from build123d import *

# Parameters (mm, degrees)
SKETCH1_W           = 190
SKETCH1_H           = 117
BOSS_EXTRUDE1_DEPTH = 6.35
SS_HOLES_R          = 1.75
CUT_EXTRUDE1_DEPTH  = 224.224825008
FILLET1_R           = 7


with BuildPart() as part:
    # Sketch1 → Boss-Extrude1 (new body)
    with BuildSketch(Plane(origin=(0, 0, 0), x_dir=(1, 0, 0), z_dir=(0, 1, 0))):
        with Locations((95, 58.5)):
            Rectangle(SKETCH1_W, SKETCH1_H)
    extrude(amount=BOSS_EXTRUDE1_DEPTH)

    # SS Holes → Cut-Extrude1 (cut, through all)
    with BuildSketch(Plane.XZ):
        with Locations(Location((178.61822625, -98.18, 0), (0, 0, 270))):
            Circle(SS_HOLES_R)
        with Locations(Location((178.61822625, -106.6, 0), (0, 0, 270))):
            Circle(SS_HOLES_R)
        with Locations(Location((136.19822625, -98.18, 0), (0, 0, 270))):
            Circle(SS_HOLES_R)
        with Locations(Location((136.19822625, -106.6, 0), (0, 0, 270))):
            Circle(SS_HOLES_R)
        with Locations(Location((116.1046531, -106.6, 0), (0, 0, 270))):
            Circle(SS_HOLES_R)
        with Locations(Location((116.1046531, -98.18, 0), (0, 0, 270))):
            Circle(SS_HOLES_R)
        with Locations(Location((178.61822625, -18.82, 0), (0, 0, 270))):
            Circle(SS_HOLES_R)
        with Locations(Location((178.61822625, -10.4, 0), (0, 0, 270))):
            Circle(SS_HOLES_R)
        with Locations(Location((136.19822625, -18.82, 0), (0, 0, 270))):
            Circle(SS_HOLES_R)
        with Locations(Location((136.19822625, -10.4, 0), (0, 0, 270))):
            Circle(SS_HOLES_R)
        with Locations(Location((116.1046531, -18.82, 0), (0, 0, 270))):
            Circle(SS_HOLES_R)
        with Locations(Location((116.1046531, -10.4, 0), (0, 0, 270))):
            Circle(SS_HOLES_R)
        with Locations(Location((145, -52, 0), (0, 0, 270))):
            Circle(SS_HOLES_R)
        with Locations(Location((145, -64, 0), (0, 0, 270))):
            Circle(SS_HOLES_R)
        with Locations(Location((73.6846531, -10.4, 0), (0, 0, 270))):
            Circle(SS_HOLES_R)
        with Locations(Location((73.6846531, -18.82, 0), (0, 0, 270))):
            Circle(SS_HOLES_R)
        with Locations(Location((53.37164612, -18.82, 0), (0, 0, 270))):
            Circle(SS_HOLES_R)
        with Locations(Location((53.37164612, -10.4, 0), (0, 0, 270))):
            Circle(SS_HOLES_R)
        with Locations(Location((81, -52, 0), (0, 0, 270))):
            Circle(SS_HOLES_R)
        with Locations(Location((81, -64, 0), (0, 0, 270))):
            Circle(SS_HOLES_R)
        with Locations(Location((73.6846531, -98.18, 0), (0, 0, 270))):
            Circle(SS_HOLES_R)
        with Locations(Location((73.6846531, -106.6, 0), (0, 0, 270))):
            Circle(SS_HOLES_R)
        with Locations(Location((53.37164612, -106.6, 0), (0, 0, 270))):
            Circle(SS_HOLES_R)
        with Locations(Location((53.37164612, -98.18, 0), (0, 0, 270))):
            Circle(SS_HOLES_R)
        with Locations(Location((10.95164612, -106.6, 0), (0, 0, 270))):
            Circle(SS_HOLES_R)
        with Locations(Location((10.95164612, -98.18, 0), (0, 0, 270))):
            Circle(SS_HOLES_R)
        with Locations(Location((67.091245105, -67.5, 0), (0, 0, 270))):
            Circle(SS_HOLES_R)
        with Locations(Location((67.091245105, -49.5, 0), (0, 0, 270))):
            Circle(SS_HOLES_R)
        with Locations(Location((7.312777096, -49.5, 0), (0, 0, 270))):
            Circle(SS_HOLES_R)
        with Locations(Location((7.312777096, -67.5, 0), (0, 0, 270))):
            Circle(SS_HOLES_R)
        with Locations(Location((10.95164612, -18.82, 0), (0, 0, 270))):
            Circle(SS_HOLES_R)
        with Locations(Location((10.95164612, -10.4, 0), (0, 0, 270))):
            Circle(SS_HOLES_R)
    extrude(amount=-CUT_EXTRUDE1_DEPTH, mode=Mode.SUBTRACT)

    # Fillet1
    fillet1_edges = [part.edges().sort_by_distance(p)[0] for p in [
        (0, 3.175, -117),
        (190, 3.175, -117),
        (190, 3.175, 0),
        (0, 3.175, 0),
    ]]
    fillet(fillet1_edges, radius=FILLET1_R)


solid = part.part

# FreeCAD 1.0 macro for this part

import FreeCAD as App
import Part
import Sketcher


def edges_at(feature, points):
    """Names of the edges that pass closest to the given points."""
    edges = feature.Shape.Edges
    near = lambda p: min(range(len(edges)), key=lambda i: edges[i].distToShape(Part.Vertex(*p))[0])
    return sorted({f"Edge{near(p) + 1}" for p in points})


def add_polygon(sketch, points):
    """Adds a closed chain of lines whose ends are joined by coincident constraints."""
    first, n = sketch.GeometryCount, len(points)
    for a, b in zip(points, points[1:] + points[:1]):
        sketch.addGeometry(Part.LineSegment(App.Vector(*a, 0), App.Vector(*b, 0)), False)
    for i in range(n):
        sketch.addConstraint(Sketcher.Constraint("Coincident", first + i, 2, first + (i + 1) % n, 1))

doc = App.newDocument("Part")
params = doc.addObject("Spreadsheet::Sheet", "Params")
for row, (alias, value) in enumerate([
    ("sketch1_width", "190 mm"),
    ("sketch1_height", "117 mm"),
    ("pad1_length", "6.35 mm"),
    ("sketch2_diameter", "3.5 mm"),
    ("fillet_radius", "7 mm"),
], start=1):
    params.set(f"A{row}", alias)
    params.set(f"B{row}", "=" + value)
    params.setAlias(f"B{row}", alias)

body = doc.addObject("PartDesign::Body", "Body")

# Sketch on XZ plane
sketch1 = body.newObject("Sketcher::SketchObject", "Sketch")
sketch1.AttachmentSupport = (doc.getObject("XZ_Plane"), [""])
sketch1.MapMode = "FlatFace"
add_polygon(sketch1, [(0, -117), (0, 0), (190, 0), (190, -117)])  # lines 0-3
sketch1.addConstraint(Sketcher.Constraint("Vertical", 0))
sketch1.addConstraint(Sketcher.Constraint("Horizontal", 1))
sketch1.addConstraint(Sketcher.Constraint("Vertical", 2))
sketch1.addConstraint(Sketcher.Constraint("Horizontal", 3))
sketch1.addConstraint(Sketcher.Constraint("Coincident", 0, 2, -1, 1))
sketch1.addConstraint(Sketcher.Constraint("DistanceX", 1, 1, 1, 2, 190.0))
sketch1.addConstraint(Sketcher.Constraint("DistanceY", 0, 1, 0, 2, 117.0))
sketch1.setExpression("Constraints[9]", "Params.sketch1_width")
sketch1.setExpression("Constraints[10]", "Params.sketch1_height")
pad1 = body.newObject("PartDesign::Pad", "Pad")
pad1.Profile = sketch1
pad1.setExpression("Length", "Params.pad1_length")
pad1.Reversed = True

# Sketch on XZ plane
sketch2 = body.newObject("Sketcher::SketchObject", "Sketch001")
sketch2.AttachmentSupport = (doc.getObject("XZ_Plane"), [""])
sketch2.MapMode = "FlatFace"
sketch2.addGeometry(Part.Circle(App.Vector(178.6, -98.2, 0), App.Vector(0, 0, 1), 1.8), False)
sketch2.addGeometry(Part.Circle(App.Vector(178.6, -106.6, 0), App.Vector(0, 0, 1), 1.8), False)
sketch2.addGeometry(Part.Circle(App.Vector(136.2, -98.2, 0), App.Vector(0, 0, 1), 1.8), False)
sketch2.addGeometry(Part.Circle(App.Vector(136.2, -106.6, 0), App.Vector(0, 0, 1), 1.8), False)
sketch2.addGeometry(Part.Circle(App.Vector(116.1, -106.6, 0), App.Vector(0, 0, 1), 1.8), False)
sketch2.addGeometry(Part.Circle(App.Vector(116.1, -98.2, 0), App.Vector(0, 0, 1), 1.8), False)
sketch2.addGeometry(Part.Circle(App.Vector(178.6, -18.8, 0), App.Vector(0, 0, 1), 1.8), False)
sketch2.addGeometry(Part.Circle(App.Vector(178.6, -10.4, 0), App.Vector(0, 0, 1), 1.8), False)
sketch2.addGeometry(Part.Circle(App.Vector(136.2, -18.8, 0), App.Vector(0, 0, 1), 1.8), False)
sketch2.addGeometry(Part.Circle(App.Vector(136.2, -10.4, 0), App.Vector(0, 0, 1), 1.8), False)
sketch2.addGeometry(Part.Circle(App.Vector(116.1, -18.8, 0), App.Vector(0, 0, 1), 1.8), False)
sketch2.addGeometry(Part.Circle(App.Vector(116.1, -10.4, 0), App.Vector(0, 0, 1), 1.8), False)
sketch2.addGeometry(Part.Circle(App.Vector(145, -52, 0), App.Vector(0, 0, 1), 1.8), False)
sketch2.addGeometry(Part.Circle(App.Vector(145, -64, 0), App.Vector(0, 0, 1), 1.8), False)
sketch2.addGeometry(Part.Circle(App.Vector(73.7, -10.4, 0), App.Vector(0, 0, 1), 1.8), False)
sketch2.addGeometry(Part.Circle(App.Vector(73.7, -18.8, 0), App.Vector(0, 0, 1), 1.8), False)
sketch2.addGeometry(Part.Circle(App.Vector(53.4, -18.8, 0), App.Vector(0, 0, 1), 1.8), False)
sketch2.addGeometry(Part.Circle(App.Vector(53.4, -10.4, 0), App.Vector(0, 0, 1), 1.8), False)
sketch2.addGeometry(Part.Circle(App.Vector(81, -52, 0), App.Vector(0, 0, 1), 1.8), False)
sketch2.addGeometry(Part.Circle(App.Vector(81, -64, 0), App.Vector(0, 0, 1), 1.8), False)
sketch2.addGeometry(Part.Circle(App.Vector(73.7, -98.2, 0), App.Vector(0, 0, 1), 1.8), False)
sketch2.addGeometry(Part.Circle(App.Vector(73.7, -106.6, 0), App.Vector(0, 0, 1), 1.8), False)
sketch2.addGeometry(Part.Circle(App.Vector(53.4, -106.6, 0), App.Vector(0, 0, 1), 1.8), False)
sketch2.addGeometry(Part.Circle(App.Vector(53.4, -98.2, 0), App.Vector(0, 0, 1), 1.8), False)
sketch2.addGeometry(Part.Circle(App.Vector(11, -106.6, 0), App.Vector(0, 0, 1), 1.8), False)
sketch2.addGeometry(Part.Circle(App.Vector(11, -98.2, 0), App.Vector(0, 0, 1), 1.8), False)
sketch2.addGeometry(Part.Circle(App.Vector(67.1, -67.5, 0), App.Vector(0, 0, 1), 1.8), False)
sketch2.addGeometry(Part.Circle(App.Vector(67.1, -49.5, 0), App.Vector(0, 0, 1), 1.8), False)
sketch2.addGeometry(Part.Circle(App.Vector(7.3, -49.5, 0), App.Vector(0, 0, 1), 1.8), False)
sketch2.addGeometry(Part.Circle(App.Vector(7.3, -67.5, 0), App.Vector(0, 0, 1), 1.8), False)
sketch2.addGeometry(Part.Circle(App.Vector(11, -18.8, 0), App.Vector(0, 0, 1), 1.8), False)
sketch2.addGeometry(Part.Circle(App.Vector(11, -10.4, 0), App.Vector(0, 0, 1), 1.8), False)
sketch2.addConstraint(Sketcher.Constraint("Equal", 0, 1))
sketch2.addConstraint(Sketcher.Constraint("Equal", 1, 2))
sketch2.addConstraint(Sketcher.Constraint("Equal", 2, 3))
sketch2.addConstraint(Sketcher.Constraint("Equal", 3, 4))
sketch2.addConstraint(Sketcher.Constraint("Equal", 4, 5))
sketch2.addConstraint(Sketcher.Constraint("Equal", 5, 6))
sketch2.addConstraint(Sketcher.Constraint("Equal", 6, 7))
sketch2.addConstraint(Sketcher.Constraint("Equal", 7, 8))
sketch2.addConstraint(Sketcher.Constraint("Equal", 8, 9))
sketch2.addConstraint(Sketcher.Constraint("Equal", 9, 10))
sketch2.addConstraint(Sketcher.Constraint("Equal", 10, 11))
sketch2.addConstraint(Sketcher.Constraint("Equal", 11, 12))
sketch2.addConstraint(Sketcher.Constraint("Equal", 12, 13))
sketch2.addConstraint(Sketcher.Constraint("Equal", 13, 14))
sketch2.addConstraint(Sketcher.Constraint("Equal", 14, 15))
sketch2.addConstraint(Sketcher.Constraint("Equal", 15, 16))
sketch2.addConstraint(Sketcher.Constraint("Equal", 16, 17))
sketch2.addConstraint(Sketcher.Constraint("Equal", 17, 18))
sketch2.addConstraint(Sketcher.Constraint("Equal", 18, 19))
sketch2.addConstraint(Sketcher.Constraint("Equal", 19, 20))
sketch2.addConstraint(Sketcher.Constraint("Equal", 20, 21))
sketch2.addConstraint(Sketcher.Constraint("Equal", 21, 22))
sketch2.addConstraint(Sketcher.Constraint("Equal", 22, 23))
sketch2.addConstraint(Sketcher.Constraint("Equal", 23, 24))
sketch2.addConstraint(Sketcher.Constraint("Equal", 24, 25))
sketch2.addConstraint(Sketcher.Constraint("Equal", 25, 26))
sketch2.addConstraint(Sketcher.Constraint("Equal", 26, 27))
sketch2.addConstraint(Sketcher.Constraint("Equal", 27, 28))
sketch2.addConstraint(Sketcher.Constraint("Equal", 28, 29))
sketch2.addConstraint(Sketcher.Constraint("Equal", 29, 30))
sketch2.addConstraint(Sketcher.Constraint("Equal", 30, 31))
sketch2.addConstraint(Sketcher.Constraint("Horizontal", 0, 3, 2, 3))
sketch2.addConstraint(Sketcher.Constraint("Horizontal", 1, 3, 3, 3))
sketch2.addConstraint(Sketcher.Constraint("Horizontal", 3, 3, 4, 3))
sketch2.addConstraint(Sketcher.Constraint("Horizontal", 2, 3, 5, 3))
sketch2.addConstraint(Sketcher.Constraint("Horizontal", 6, 3, 8, 3))
sketch2.addConstraint(Sketcher.Constraint("Horizontal", 7, 3, 9, 3))
sketch2.addConstraint(Sketcher.Constraint("Horizontal", 8, 3, 10, 3))
sketch2.addConstraint(Sketcher.Constraint("Horizontal", 9, 3, 11, 3))
sketch2.addConstraint(Sketcher.Constraint("Horizontal", 11, 3, 14, 3))
sketch2.addConstraint(Sketcher.Constraint("Horizontal", 10, 3, 15, 3))
sketch2.addConstraint(Sketcher.Constraint("Horizontal", 15, 3, 16, 3))
sketch2.addConstraint(Sketcher.Constraint("Horizontal", 14, 3, 17, 3))
sketch2.addConstraint(Sketcher.Constraint("Horizontal", 12, 3, 18, 3))
sketch2.addConstraint(Sketcher.Constraint("Horizontal", 13, 3, 19, 3))
sketch2.addConstraint(Sketcher.Constraint("Horizontal", 5, 3, 20, 3))
sketch2.addConstraint(Sketcher.Constraint("Horizontal", 4, 3, 21, 3))
sketch2.addConstraint(Sketcher.Constraint("Horizontal", 21, 3, 22, 3))
sketch2.addConstraint(Sketcher.Constraint("Horizontal", 20, 3, 23, 3))
sketch2.addConstraint(Sketcher.Constraint("Horizontal", 22, 3, 24, 3))
sketch2.addConstraint(Sketcher.Constraint("Horizontal", 23, 3, 25, 3))
sketch2.addConstraint(Sketcher.Constraint("Horizontal", 27, 3, 28, 3))
sketch2.addConstraint(Sketcher.Constraint("Horizontal", 26, 3, 29, 3))
sketch2.addConstraint(Sketcher.Constraint("Horizontal", 16, 3, 30, 3))
sketch2.addConstraint(Sketcher.Constraint("Horizontal", 17, 3, 31, 3))
sketch2.addConstraint(Sketcher.Constraint("Vertical", 0, 3, 1, 3))
sketch2.addConstraint(Sketcher.Constraint("Vertical", 2, 3, 3, 3))
sketch2.addConstraint(Sketcher.Constraint("Vertical", 4, 3, 5, 3))
sketch2.addConstraint(Sketcher.Constraint("Vertical", 1, 3, 6, 3))
sketch2.addConstraint(Sketcher.Constraint("Vertical", 6, 3, 7, 3))
sketch2.addConstraint(Sketcher.Constraint("Vertical", 3, 3, 8, 3))
sketch2.addConstraint(Sketcher.Constraint("Vertical", 8, 3, 9, 3))
sketch2.addConstraint(Sketcher.Constraint("Vertical", 5, 3, 10, 3))
sketch2.addConstraint(Sketcher.Constraint("Vertical", 10, 3, 11, 3))
sketch2.addConstraint(Sketcher.Constraint("Vertical", 12, 3, 13, 3))
sketch2.addConstraint(Sketcher.Constraint("Vertical", 14, 3, 15, 3))
sketch2.addConstraint(Sketcher.Constraint("Vertical", 16, 3, 17, 3))
sketch2.addConstraint(Sketcher.Constraint("Vertical", 18, 3, 19, 3))
sketch2.addConstraint(Sketcher.Constraint("Vertical", 15, 3, 20, 3))
sketch2.addConstraint(Sketcher.Constraint("Vertical", 20, 3, 21, 3))
sketch2.addConstraint(Sketcher.Constraint("Vertical", 17, 3, 22, 3))
sketch2.addConstraint(Sketcher.Constraint("Vertical", 22, 3, 23, 3))
sketch2.addConstraint(Sketcher.Constraint("Vertical", 24, 3, 25, 3))
sketch2.addConstraint(Sketcher.Constraint("Vertical", 26, 3, 27, 3))
sketch2.addConstraint(Sketcher.Constraint("Vertical", 28, 3, 29, 3))
sketch2.addConstraint(Sketcher.Constraint("Vertical", 25, 3, 30, 3))
sketch2.addConstraint(Sketcher.Constraint("Vertical", 30, 3, 31, 3))
sketch2.addConstraint(Sketcher.Constraint("Diameter", 0, 3.5))
sketch2.addConstraint(Sketcher.Constraint("DistanceX", -1, 1, 12, 3, 145.0))
sketch2.addConstraint(Sketcher.Constraint("DistanceY", 12, 3, -1, 1, 52.0))
sketch2.addConstraint(Sketcher.Constraint("DistanceY", 13, 3, -1, 1, 64.0))
sketch2.addConstraint(Sketcher.Constraint("DistanceX", -1, 1, 18, 3, 81.0))
sketch2.addConstraint(Sketcher.Constraint("DistanceY", 26, 3, 27, 3, 18.0))
sketch2.addConstraint(Sketcher.Constraint("DistanceY", 1, 3, -1, 1, 106.6))
sketch2.addConstraint(Sketcher.Constraint("DistanceY", 7, 3, -1, 1, 10.4))
sketch2.addConstraint(Sketcher.Constraint("DistanceY", 26, 3, -1, 1, 67.5))
sketch2.addConstraint(Sketcher.Constraint("DistanceY", 0, 3, -1, 1, 98.18))
sketch2.addConstraint(Sketcher.Constraint("DistanceY", 6, 3, -1, 1, 18.82))
sketch2.addConstraint(Sketcher.Constraint("DistanceX", 2, 3, 0, 3, 42.42))
sketch2.addConstraint(Sketcher.Constraint("DistanceX", 14, 3, 11, 3, 42.42))
sketch2.addConstraint(Sketcher.Constraint("DistanceX", 24, 3, 22, 3, 42.42))
sketch2.addConstraint(Sketcher.Constraint("DistanceX", 23, 3, 26, 3, 13.719599))
sketch2.addConstraint(Sketcher.Constraint("DistanceX", 16, 3, 8, 3, 82.82658))
sketch2.addConstraint(Sketcher.Constraint("DistanceX", 28, 3, 25, 3, 3.638869))
sketch2.addConstraint(Sketcher.Constraint("DistanceX", -1, 1, 0, 3, 178.618226))
sketch2.addConstraint(Sketcher.Constraint("DistanceX", -1, 1, 4, 3, 116.104653))
sketch2.setExpression("Constraints[77]", "Params.sketch2_diameter")
pocket1 = body.newObject("PartDesign::Pocket", "Pocket")
pocket1.Profile = sketch2
pocket1.Type = "ThroughAll"
doc.recompute()

fillet = body.newObject("PartDesign::Fillet", "Fillet")
fillet.Base = (pocket1, edges_at(pocket1, [
    (0, 3.175, -117),
    (190, 3.175, -117),
    (190, 3.175, 0),
    (0, 3.175, 0),
]))
fillet.setExpression("Radius", "Params.fillet_radius")

doc.recompute()
